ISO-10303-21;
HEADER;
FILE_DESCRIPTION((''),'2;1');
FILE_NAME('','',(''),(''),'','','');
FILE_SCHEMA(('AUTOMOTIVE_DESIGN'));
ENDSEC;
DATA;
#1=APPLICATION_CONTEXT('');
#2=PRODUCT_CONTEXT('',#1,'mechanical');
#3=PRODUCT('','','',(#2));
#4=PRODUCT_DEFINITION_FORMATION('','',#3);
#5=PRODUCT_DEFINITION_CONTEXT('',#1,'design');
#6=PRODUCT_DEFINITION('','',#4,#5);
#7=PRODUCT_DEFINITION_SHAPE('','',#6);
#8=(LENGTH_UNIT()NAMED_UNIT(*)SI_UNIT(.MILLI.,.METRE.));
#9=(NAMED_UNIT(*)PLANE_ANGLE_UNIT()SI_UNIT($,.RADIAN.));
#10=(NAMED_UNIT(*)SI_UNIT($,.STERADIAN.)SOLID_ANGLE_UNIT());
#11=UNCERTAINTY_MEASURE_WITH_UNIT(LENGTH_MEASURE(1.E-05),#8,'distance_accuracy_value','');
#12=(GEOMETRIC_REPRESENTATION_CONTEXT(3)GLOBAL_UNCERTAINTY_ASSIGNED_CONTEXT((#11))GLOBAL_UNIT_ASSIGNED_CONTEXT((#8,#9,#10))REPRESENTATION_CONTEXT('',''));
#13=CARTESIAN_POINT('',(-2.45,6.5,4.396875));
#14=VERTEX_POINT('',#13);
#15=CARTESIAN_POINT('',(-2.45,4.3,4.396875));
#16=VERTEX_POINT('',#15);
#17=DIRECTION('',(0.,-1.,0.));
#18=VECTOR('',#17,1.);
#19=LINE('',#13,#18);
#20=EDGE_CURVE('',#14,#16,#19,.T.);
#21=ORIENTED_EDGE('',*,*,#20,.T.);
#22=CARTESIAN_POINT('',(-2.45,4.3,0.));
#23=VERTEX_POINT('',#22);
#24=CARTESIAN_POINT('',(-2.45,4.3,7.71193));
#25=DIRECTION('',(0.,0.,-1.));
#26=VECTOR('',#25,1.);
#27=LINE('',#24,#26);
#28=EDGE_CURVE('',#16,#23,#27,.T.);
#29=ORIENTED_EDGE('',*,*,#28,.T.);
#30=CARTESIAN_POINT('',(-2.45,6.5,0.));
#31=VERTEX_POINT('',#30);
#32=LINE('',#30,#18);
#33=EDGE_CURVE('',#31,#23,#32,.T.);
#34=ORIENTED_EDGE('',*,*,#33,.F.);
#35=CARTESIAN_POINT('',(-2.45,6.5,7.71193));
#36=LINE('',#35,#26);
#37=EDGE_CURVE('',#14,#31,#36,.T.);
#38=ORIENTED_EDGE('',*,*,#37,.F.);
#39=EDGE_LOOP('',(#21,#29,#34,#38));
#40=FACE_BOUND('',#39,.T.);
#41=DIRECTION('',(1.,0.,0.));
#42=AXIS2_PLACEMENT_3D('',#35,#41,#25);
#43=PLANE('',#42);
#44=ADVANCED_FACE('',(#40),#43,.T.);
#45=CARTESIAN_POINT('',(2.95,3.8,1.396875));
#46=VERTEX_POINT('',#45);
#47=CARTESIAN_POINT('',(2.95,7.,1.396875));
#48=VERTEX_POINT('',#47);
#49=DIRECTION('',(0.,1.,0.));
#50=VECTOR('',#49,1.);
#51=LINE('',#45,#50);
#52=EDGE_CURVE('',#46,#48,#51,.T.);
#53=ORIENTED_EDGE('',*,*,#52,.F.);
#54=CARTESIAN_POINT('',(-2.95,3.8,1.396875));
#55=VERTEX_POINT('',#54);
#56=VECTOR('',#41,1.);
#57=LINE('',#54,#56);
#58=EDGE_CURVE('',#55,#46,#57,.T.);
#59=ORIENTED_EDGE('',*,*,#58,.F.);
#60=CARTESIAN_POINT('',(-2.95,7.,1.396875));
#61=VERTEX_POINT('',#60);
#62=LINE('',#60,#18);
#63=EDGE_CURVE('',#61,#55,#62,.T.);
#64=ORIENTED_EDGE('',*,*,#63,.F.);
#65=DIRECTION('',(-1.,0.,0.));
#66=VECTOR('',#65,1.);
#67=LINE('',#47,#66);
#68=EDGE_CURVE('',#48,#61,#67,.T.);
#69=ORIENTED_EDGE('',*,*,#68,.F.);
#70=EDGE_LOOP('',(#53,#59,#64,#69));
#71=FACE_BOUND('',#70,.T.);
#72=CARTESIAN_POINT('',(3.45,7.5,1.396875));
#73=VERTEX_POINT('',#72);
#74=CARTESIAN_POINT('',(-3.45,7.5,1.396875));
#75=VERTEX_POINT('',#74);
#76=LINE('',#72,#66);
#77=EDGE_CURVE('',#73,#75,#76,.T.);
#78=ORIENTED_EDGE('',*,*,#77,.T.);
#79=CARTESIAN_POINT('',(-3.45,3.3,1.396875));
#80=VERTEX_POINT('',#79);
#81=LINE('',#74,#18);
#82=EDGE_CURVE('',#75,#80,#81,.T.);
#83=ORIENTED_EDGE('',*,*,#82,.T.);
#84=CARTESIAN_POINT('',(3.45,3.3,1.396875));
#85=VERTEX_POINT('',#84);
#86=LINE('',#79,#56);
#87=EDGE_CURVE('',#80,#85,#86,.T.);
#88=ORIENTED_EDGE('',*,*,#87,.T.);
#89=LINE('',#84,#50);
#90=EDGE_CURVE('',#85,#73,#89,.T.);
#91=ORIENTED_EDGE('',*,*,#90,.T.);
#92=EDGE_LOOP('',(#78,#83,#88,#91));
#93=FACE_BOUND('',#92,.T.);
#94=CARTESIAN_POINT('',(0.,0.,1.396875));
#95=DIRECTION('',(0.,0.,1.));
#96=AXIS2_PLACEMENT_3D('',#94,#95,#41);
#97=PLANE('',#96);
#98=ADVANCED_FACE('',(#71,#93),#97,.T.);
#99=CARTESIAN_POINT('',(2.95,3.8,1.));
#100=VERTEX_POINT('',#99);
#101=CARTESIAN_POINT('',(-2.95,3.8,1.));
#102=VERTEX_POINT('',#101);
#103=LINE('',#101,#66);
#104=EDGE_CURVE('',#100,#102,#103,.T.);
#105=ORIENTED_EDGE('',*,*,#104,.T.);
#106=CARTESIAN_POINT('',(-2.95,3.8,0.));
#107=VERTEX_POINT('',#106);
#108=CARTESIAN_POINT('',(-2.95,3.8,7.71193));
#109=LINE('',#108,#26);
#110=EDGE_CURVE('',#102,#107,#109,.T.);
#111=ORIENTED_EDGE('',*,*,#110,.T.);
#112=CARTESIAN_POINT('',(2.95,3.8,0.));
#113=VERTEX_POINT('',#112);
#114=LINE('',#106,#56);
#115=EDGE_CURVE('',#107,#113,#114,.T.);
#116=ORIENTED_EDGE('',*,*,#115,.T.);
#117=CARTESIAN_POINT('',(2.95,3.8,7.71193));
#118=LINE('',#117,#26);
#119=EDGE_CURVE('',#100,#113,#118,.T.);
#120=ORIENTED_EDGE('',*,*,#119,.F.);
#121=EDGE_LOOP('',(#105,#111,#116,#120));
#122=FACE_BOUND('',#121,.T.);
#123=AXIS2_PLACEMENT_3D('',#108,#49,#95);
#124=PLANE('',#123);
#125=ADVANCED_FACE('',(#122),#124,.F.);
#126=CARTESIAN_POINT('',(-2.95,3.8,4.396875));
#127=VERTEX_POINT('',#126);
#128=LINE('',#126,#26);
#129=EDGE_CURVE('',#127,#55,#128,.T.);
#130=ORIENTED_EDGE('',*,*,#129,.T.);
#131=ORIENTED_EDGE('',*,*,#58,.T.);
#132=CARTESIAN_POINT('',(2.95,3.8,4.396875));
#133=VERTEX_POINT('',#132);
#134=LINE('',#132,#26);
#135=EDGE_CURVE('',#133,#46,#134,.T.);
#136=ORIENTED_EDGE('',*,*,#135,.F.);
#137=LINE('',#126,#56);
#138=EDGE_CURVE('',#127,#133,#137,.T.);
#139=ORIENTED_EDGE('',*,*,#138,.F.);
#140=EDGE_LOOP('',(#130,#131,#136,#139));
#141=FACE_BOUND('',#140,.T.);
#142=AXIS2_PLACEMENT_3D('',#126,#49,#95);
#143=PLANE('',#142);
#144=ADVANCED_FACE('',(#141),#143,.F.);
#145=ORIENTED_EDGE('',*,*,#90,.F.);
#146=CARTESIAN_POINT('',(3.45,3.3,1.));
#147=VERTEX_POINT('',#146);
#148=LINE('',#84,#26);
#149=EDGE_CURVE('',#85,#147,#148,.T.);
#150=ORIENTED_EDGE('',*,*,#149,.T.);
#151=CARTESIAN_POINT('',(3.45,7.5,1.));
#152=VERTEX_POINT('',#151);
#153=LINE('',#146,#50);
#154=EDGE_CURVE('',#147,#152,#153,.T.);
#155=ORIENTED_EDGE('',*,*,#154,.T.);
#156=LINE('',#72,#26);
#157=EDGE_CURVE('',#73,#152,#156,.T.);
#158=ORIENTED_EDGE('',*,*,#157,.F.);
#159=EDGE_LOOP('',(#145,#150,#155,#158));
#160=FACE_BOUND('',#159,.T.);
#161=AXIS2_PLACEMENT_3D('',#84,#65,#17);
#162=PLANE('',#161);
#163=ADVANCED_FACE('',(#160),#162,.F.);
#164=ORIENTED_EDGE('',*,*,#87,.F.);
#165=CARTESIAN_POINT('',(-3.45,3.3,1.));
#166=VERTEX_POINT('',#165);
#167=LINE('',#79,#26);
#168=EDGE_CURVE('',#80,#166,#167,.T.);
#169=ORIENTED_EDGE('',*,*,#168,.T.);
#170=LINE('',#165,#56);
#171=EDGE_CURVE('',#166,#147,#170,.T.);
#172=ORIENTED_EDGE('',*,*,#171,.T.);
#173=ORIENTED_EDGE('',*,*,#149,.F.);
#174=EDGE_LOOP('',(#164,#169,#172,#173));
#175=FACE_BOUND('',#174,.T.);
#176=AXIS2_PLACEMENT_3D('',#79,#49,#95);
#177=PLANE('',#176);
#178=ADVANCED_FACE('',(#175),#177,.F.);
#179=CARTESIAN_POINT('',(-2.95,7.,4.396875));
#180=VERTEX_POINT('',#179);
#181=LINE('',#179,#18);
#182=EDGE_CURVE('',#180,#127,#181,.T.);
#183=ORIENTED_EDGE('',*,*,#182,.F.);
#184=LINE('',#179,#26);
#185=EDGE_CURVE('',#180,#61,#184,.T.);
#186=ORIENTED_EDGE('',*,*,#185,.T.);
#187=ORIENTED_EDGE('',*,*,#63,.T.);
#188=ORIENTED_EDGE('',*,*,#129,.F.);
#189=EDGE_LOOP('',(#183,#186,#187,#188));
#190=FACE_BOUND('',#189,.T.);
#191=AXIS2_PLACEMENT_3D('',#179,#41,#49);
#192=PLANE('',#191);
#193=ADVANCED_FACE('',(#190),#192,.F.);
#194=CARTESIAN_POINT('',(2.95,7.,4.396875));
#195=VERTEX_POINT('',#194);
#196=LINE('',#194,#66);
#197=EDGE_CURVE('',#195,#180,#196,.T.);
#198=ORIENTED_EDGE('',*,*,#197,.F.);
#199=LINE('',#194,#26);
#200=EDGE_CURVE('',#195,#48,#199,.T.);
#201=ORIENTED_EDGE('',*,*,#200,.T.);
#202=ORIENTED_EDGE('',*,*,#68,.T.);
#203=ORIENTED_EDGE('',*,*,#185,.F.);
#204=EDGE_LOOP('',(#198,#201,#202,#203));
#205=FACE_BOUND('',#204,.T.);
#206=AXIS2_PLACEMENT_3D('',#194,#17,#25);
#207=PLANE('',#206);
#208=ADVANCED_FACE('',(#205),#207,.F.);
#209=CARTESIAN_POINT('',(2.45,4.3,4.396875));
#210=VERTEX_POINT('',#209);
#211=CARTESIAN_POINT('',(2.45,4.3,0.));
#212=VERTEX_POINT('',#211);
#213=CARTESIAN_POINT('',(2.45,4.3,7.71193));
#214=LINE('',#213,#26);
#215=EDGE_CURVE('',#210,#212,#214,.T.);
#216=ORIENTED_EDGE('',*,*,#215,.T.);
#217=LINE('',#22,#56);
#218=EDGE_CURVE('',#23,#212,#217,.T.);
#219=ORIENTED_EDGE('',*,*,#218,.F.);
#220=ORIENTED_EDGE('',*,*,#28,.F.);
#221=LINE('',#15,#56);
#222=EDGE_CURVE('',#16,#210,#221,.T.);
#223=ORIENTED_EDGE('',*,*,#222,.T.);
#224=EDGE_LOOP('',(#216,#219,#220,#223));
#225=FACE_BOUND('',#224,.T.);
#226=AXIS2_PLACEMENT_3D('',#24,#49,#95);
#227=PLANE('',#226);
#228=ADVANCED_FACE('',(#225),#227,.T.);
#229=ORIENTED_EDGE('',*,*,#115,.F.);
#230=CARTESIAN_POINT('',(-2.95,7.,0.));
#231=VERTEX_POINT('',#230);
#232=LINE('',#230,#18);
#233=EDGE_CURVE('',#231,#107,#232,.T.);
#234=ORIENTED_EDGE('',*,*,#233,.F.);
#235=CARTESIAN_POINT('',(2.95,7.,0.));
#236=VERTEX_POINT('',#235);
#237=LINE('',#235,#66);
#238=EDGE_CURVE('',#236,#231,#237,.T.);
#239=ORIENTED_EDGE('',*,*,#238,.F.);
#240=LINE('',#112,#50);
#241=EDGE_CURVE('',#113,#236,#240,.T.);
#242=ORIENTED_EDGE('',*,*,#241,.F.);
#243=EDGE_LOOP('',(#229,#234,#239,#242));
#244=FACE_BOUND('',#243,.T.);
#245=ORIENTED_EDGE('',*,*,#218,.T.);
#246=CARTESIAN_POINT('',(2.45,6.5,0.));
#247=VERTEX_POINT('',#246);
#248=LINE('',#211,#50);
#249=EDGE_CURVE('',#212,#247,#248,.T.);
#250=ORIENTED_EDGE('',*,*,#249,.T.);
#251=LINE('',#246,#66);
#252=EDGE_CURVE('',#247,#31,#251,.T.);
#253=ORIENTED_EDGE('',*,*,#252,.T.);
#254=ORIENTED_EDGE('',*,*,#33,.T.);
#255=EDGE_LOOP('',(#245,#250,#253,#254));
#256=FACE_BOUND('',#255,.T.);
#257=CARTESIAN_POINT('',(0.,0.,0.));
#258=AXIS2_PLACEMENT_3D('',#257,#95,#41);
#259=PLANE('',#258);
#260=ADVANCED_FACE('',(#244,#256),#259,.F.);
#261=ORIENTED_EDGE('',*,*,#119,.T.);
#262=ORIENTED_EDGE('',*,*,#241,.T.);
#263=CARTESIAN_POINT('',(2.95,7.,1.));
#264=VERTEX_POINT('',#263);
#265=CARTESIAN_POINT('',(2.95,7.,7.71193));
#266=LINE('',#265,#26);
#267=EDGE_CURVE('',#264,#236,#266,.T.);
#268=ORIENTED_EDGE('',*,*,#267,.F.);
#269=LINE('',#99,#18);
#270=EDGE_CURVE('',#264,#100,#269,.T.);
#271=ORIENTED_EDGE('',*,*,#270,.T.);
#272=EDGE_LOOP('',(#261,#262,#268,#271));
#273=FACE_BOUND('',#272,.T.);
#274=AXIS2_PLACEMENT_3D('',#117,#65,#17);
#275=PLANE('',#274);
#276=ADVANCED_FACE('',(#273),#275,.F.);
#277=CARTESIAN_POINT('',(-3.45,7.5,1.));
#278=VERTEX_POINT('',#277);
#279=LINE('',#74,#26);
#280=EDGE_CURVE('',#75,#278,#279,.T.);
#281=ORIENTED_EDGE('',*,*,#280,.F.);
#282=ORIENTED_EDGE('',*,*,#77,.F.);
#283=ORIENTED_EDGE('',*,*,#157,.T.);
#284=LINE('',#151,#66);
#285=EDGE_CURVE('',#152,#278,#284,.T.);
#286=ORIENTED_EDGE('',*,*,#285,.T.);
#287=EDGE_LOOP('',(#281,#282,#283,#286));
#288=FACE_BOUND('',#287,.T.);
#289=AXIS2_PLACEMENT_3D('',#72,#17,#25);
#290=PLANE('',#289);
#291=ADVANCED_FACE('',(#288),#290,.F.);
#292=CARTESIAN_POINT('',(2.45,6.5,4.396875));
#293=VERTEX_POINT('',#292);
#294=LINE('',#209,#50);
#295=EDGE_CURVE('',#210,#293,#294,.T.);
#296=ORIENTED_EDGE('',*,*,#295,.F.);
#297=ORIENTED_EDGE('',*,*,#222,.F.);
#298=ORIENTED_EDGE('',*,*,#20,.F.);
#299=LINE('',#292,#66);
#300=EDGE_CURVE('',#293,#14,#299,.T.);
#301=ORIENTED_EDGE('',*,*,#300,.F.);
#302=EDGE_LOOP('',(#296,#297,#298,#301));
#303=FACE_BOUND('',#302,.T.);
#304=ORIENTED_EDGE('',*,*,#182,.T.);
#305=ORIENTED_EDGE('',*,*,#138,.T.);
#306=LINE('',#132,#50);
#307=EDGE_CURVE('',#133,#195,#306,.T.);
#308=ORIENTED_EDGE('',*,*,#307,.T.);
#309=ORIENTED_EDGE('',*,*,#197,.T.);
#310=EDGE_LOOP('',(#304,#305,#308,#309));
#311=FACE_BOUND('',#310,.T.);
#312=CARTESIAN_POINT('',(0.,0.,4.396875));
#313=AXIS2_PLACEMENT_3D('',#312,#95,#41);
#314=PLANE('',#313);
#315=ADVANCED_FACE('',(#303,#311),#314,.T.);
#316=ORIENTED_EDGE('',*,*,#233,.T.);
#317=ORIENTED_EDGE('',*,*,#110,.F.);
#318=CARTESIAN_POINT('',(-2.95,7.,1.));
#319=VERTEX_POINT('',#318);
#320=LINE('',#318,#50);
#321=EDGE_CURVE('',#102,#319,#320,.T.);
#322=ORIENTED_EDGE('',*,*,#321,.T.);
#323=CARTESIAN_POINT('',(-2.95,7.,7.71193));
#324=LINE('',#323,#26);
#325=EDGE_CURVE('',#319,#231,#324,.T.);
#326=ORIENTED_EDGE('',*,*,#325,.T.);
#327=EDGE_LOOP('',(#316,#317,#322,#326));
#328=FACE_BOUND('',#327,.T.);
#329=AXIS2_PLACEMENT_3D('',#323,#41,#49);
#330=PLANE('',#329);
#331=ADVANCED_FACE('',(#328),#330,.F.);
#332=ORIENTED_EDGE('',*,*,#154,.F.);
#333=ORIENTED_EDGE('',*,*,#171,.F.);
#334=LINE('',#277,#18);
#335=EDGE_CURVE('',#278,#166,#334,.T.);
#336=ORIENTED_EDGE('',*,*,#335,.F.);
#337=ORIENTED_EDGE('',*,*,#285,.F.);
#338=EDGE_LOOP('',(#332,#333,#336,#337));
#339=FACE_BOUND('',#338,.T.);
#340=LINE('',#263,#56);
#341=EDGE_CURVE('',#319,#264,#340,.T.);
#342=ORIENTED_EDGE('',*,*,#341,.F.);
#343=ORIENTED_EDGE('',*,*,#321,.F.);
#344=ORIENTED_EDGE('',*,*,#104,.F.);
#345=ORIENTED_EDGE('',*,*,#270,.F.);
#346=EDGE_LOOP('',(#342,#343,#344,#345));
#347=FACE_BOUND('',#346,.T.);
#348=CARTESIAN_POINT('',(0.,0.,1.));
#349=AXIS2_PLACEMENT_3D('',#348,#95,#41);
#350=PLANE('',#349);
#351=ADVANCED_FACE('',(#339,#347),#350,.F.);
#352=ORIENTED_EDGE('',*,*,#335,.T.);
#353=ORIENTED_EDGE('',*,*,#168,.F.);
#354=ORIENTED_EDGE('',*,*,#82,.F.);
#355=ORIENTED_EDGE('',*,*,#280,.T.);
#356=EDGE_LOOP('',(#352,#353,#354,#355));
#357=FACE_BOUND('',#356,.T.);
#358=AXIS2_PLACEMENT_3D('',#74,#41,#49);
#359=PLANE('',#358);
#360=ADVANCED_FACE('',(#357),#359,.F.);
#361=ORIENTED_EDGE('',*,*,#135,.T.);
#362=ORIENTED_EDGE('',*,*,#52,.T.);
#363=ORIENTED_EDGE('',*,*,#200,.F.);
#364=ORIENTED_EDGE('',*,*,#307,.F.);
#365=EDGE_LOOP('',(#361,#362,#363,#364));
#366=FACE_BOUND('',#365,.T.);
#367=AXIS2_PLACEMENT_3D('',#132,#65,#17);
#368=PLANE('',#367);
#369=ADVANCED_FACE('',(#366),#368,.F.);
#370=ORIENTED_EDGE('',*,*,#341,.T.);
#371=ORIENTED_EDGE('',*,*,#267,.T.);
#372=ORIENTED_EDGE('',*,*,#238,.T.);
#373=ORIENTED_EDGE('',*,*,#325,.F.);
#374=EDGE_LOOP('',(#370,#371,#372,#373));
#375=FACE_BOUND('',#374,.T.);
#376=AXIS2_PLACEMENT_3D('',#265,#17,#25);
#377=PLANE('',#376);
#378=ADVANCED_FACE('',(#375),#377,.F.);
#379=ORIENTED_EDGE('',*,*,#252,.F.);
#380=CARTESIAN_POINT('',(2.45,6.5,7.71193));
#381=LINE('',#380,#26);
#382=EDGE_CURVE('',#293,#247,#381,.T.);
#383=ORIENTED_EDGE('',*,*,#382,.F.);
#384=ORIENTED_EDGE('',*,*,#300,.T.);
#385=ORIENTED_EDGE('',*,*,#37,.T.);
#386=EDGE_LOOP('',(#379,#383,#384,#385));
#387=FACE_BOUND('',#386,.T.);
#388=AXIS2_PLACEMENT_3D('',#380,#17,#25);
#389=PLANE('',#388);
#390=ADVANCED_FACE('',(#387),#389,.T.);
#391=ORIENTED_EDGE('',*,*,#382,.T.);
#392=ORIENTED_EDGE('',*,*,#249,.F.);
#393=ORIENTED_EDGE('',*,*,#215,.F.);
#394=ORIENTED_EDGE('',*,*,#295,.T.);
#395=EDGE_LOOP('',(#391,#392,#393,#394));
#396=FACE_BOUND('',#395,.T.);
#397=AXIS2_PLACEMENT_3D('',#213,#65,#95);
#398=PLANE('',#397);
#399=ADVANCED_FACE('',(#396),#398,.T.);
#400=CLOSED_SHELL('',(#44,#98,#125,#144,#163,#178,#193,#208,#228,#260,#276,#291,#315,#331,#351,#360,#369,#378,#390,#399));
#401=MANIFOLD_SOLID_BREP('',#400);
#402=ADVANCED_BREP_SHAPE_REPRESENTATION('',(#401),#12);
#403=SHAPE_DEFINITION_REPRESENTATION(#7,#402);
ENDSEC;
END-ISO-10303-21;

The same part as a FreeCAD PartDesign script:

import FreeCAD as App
import Part
import Sketcher
from FreeCAD import Vector

doc = App.newDocument("Part")
body = doc.addObject("PartDesign::Body", "Body")

# Sketch on XY plane
sketch1 = body.newObject("Sketcher::SketchObject", "Sketch")
sketch1.AttachmentSupport = (doc.getObject("XY_Plane"), [""])
sketch1.MapMode = "FlatFace"
sketch1.addGeometry([
    Part.LineSegment(Vector(-2.95, 7, 0), Vector(-2.95, 3.8, 0)),  # 0
    Part.LineSegment(Vector(-2.95, 3.8, 0), Vector(2.95, 3.8, 0)),  # 1
    Part.LineSegment(Vector(2.95, 3.8, 0), Vector(2.95, 7, 0)),  # 2
    Part.LineSegment(Vector(2.95, 7, 0), Vector(-2.95, 7, 0)),  # 3
    Part.LineSegment(Vector(2.45, 4.3, 0), Vector(-2.45, 4.3, 0)),  # 4
    Part.LineSegment(Vector(-2.45, 4.3, 0), Vector(-2.45, 6.5, 0)),  # 5
    Part.LineSegment(Vector(-2.45, 6.5, 0), Vector(2.45, 6.5, 0)),  # 6
    Part.LineSegment(Vector(2.45, 6.5, 0), Vector(2.45, 4.3, 0)),  # 7
], False)
sketch1.addConstraint([
    Sketcher.Constraint("Coincident", 0, 2, 1, 1),
    Sketcher.Constraint("Coincident", 1, 2, 2, 1),
    Sketcher.Constraint("Coincident", 2, 2, 3, 1),
    Sketcher.Constraint("Coincident", 3, 2, 0, 1),
    Sketcher.Constraint("Coincident", 4, 2, 5, 1),
    Sketcher.Constraint("Coincident", 5, 2, 6, 1),
    Sketcher.Constraint("Coincident", 6, 2, 7, 1),
    Sketcher.Constraint("Coincident", 7, 2, 4, 1),
    Sketcher.Constraint("Vertical", 0),
    Sketcher.Constraint("Horizontal", 1),
    Sketcher.Constraint("Vertical", 2),
    Sketcher.Constraint("Horizontal", 3),
    Sketcher.Constraint("Horizontal", 4),
    Sketcher.Constraint("Vertical", 5),
    Sketcher.Constraint("Horizontal", 6),
    Sketcher.Constraint("Vertical", 7),
    Sketcher.Constraint("DistanceX", 1, 1, 1, 2, 5.9),
    Sketcher.Constraint("DistanceX", 4, 2, 4, 1, 4.9),
    Sketcher.Constraint("DistanceY", 0, 2, 0, 1, 3.2),
    Sketcher.Constraint("DistanceY", 5, 1, 5, 2, 2.2),
    Sketcher.Constraint("DistanceY", -1, 1, 2, 2, 7.0),
    Sketcher.Constraint("DistanceY", -1, 1, 4, 2, 4.3),
    Sketcher.Constraint("DistanceX", 0, 2, 4, 2, 0.5),
    Sketcher.Constraint("DistanceX", 0, 2, -1, 1, 2.95),
])
pad1 = body.newObject("PartDesign::Pad", "Pad")
pad1.Profile = sketch1
pad1.Length = 1

# Sketch on XY plane
sketch2 = body.newObject("Sketcher::SketchObject", "Sketch001")
sketch2.AttachmentSupport = (doc.getObject("XY_Plane"), [""])
sketch2.MapMode = "FlatFace"
sketch2.AttachmentOffset = App.Placement(Vector(0, 0, 1), App.Rotation())
sketch2.addGeometry([
    Part.LineSegment(Vector(-3.45, 7.5, 0), Vector(-3.45, 3.3, 0)),  # 0
    Part.LineSegment(Vector(-3.45, 3.3, 0), Vector(3.45, 3.3, 0)),  # 1
    Part.LineSegment(Vector(3.45, 3.3, 0), Vector(3.45, 7.5, 0)),  # 2
    Part.LineSegment(Vector(3.45, 7.5, 0), Vector(-3.45, 7.5, 0)),  # 3
    Part.LineSegment(Vector(2.45, 4.3, 0), Vector(-2.45, 4.3, 0)),  # 4
    Part.LineSegment(Vector(-2.45, 4.3, 0), Vector(-2.45, 6.5, 0)),  # 5
    Part.LineSegment(Vector(-2.45, 6.5, 0), Vector(2.45, 6.5, 0)),  # 6
    Part.LineSegment(Vector(2.45, 6.5, 0), Vector(2.45, 4.3, 0)),  # 7
], False)
sketch2.addConstraint([
    Sketcher.Constraint("Coincident", 0, 2, 1, 1),
    Sketcher.Constraint("Coincident", 1, 2, 2, 1),
    Sketcher.Constraint("Coincident", 2, 2, 3, 1),
    Sketcher.Constraint("Coincident", 3, 2, 0, 1),
    Sketcher.Constraint("Coincident", 4, 2, 5, 1),
    Sketcher.Constraint("Coincident", 5, 2, 6, 1),
    Sketcher.Constraint("Coincident", 6, 2, 7, 1),
    Sketcher.Constraint("Coincident", 7, 2, 4, 1),
    Sketcher.Constraint("Vertical", 0),
    Sketcher.Constraint("Horizontal", 1),
    Sketcher.Constraint("Vertical", 2),
    Sketcher.Constraint("Horizontal", 3),
    Sketcher.Constraint("Horizontal", 4),
    Sketcher.Constraint("Vertical", 5),
    Sketcher.Constraint("Horizontal", 6),
    Sketcher.Constraint("Vertical", 7),
    Sketcher.Constraint("DistanceX", 1, 1, 1, 2, 6.9),
    Sketcher.Constraint("DistanceX", 4, 2, 4, 1, 4.9),
    Sketcher.Constraint("DistanceY", 0, 2, 0, 1, 4.2),
    Sketcher.Constraint("DistanceY", 5, 1, 5, 2, 2.2),
    Sketcher.Constraint("DistanceX", 0, 2, 4, 2, 1.0),
    Sketcher.Constraint("DistanceY", 0, 2, 4, 2, 1.0),
    Sketcher.Constraint("DistanceY", -1, 1, 0, 2, 3.3),
    Sketcher.Constraint("DistanceX", 0, 2, -1, 1, 3.45),
])
pad2 = body.newObject("PartDesign::Pad", "Pad001")
pad2.Profile = sketch2
pad2.Length = 0.396875

# Sketch on XY plane
sketch3 = body.newObject("Sketcher::SketchObject", "Sketch002")
sketch3.AttachmentSupport = (doc.getObject("XY_Plane"), [""])
sketch3.MapMode = "FlatFace"
sketch3.AttachmentOffset = App.Placement(Vector(0, 0, 1.396875), App.Rotation())
sketch3.addGeometry([
    Part.LineSegment(Vector(-2.95, 7, 0), Vector(-2.95, 3.8, 0)),  # 0
    Part.LineSegment(Vector(-2.95, 3.8, 0), Vector(2.95, 3.8, 0)),  # 1
    Part.LineSegment(Vector(2.95, 3.8, 0), Vector(2.95, 7, 0)),  # 2
    Part.LineSegment(Vector(2.95, 7, 0), Vector(-2.95, 7, 0)),  # 3
    Part.LineSegment(Vector(2.45, 4.3, 0), Vector(-2.45, 4.3, 0)),  # 4
    Part.LineSegment(Vector(-2.45, 4.3, 0), Vector(-2.45, 6.5, 0)),  # 5
    Part.LineSegment(Vector(-2.45, 6.5, 0), Vector(2.45, 6.5, 0)),  # 6
    Part.LineSegment(Vector(2.45, 6.5, 0), Vector(2.45, 4.3, 0)),  # 7
], False)
sketch3.addConstraint([
    Sketcher.Constraint("Coincident", 0, 2, 1, 1),
    Sketcher.Constraint("Coincident", 1, 2, 2, 1),
    Sketcher.Constraint("Coincident", 2, 2, 3, 1),
    Sketcher.Constraint("Coincident", 3, 2, 0, 1),
    Sketcher.Constraint("Coincident", 4, 2, 5, 1),
    Sketcher.Constraint("Coincident", 5, 2, 6, 1),
    Sketcher.Constraint("Coincident", 6, 2, 7, 1),
    Sketcher.Constraint("Coincident", 7, 2, 4, 1),
    Sketcher.Constraint("Vertical", 0),
    Sketcher.Constraint("Horizontal", 1),
    Sketcher.Constraint("Vertical", 2),
    Sketcher.Constraint("Horizontal", 3),
    Sketcher.Constraint("Horizontal", 4),
    Sketcher.Constraint("Vertical", 5),
    Sketcher.Constraint("Horizontal", 6),
    Sketcher.Constraint("Vertical", 7),
    Sketcher.Constraint("DistanceX", 1, 1, 1, 2, 5.9),
    Sketcher.Constraint("DistanceX", 4, 2, 4, 1, 4.9),
    Sketcher.Constraint("DistanceY", 0, 2, 0, 1, 3.2),
    Sketcher.Constraint("DistanceY", 5, 1, 5, 2, 2.2),
    Sketcher.Constraint("DistanceY", -1, 1, 2, 2, 7.0),
    Sketcher.Constraint("DistanceY", -1, 1, 4, 2, 4.3),
    Sketcher.Constraint("DistanceX", 0, 2, 4, 2, 0.5),
    Sketcher.Constraint("DistanceX", 0, 2, -1, 1, 2.95),
])
pad3 = body.newObject("PartDesign::Pad", "Pad002")
pad3.Profile = sketch3
pad3.Length = 3

doc.recompute()
